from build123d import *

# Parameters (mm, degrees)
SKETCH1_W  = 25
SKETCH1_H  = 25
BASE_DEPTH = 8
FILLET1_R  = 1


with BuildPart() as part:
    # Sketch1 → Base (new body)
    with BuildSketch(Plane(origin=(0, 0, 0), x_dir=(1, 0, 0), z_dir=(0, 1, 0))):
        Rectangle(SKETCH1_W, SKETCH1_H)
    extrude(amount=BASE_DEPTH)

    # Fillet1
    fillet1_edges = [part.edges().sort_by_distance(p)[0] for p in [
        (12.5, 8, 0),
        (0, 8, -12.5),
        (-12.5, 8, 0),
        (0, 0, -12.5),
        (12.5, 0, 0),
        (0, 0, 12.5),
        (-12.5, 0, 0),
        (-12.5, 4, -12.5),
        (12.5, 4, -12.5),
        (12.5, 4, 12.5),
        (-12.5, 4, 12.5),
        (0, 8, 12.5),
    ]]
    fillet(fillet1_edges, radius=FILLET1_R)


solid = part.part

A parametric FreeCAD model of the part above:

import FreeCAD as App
import Part
import Sketcher

V = App.Vector
Q = App.Units.Quantity

doc = App.newDocument("Part")
body = doc.addObject("PartDesign::Body", "Body")

# Sketch on XZ plane
sketch1 = body.newObject("Sketcher::SketchObject", "Sketch")
sketch1.AttachmentSupport = (doc.getObject("XZ_Plane"), [""])
sketch1.MapMode = "FlatFace"
sketch1.addGeometry(Part.LineSegment(V(-12, -12, 0), V(-12, 12, 0)), False)
sketch1.addGeometry(Part.LineSegment(V(-12, 12, 0), V(12, 12, 0)), False)
sketch1.addGeometry(Part.LineSegment(V(12, 12, 0), V(12, -12, 0)), False)
sketch1.addGeometry(Part.LineSegment(V(12, -12, 0), V(-12, -12, 0)), False)
sketch1.addConstraint(Sketcher.Constraint("Coincident", 0, 2, 1, 1))
sketch1.addConstraint(Sketcher.Constraint("Coincident", 1, 2, 2, 1))
sketch1.addConstraint(Sketcher.Constraint("Coincident", 2, 2, 3, 1))
sketch1.addConstraint(Sketcher.Constraint("Coincident", 3, 2, 0, 1))
sketch1.addConstraint(Sketcher.Constraint("Vertical", 0))
sketch1.addConstraint(Sketcher.Constraint("Horizontal", 1))
sketch1.addConstraint(Sketcher.Constraint("Vertical", 2))
sketch1.addConstraint(Sketcher.Constraint("Horizontal", 3))
sketch1.addConstraint(Sketcher.Constraint("Symmetric", 0, 2, 2, 2, -1, 1))
sketch1.addConstraint(Sketcher.Constraint("Equal", 3, 0))
sketch1.addConstraint(Sketcher.Constraint("DistanceX", 1, 1, 1, 2, Q("25 mm")))
pad1 = body.newObject("PartDesign::Pad", "Pad")
pad1.Profile = sketch1
pad1.Length = 8
pad1.Reversed = True
doc.recompute()

fillet = body.newObject("PartDesign::Fillet", "Fillet")
fillet.Base = (pad1, ["Edge1"])
fillet.UseAllEdges = True
fillet.Radius = 1

doc.recompute()
